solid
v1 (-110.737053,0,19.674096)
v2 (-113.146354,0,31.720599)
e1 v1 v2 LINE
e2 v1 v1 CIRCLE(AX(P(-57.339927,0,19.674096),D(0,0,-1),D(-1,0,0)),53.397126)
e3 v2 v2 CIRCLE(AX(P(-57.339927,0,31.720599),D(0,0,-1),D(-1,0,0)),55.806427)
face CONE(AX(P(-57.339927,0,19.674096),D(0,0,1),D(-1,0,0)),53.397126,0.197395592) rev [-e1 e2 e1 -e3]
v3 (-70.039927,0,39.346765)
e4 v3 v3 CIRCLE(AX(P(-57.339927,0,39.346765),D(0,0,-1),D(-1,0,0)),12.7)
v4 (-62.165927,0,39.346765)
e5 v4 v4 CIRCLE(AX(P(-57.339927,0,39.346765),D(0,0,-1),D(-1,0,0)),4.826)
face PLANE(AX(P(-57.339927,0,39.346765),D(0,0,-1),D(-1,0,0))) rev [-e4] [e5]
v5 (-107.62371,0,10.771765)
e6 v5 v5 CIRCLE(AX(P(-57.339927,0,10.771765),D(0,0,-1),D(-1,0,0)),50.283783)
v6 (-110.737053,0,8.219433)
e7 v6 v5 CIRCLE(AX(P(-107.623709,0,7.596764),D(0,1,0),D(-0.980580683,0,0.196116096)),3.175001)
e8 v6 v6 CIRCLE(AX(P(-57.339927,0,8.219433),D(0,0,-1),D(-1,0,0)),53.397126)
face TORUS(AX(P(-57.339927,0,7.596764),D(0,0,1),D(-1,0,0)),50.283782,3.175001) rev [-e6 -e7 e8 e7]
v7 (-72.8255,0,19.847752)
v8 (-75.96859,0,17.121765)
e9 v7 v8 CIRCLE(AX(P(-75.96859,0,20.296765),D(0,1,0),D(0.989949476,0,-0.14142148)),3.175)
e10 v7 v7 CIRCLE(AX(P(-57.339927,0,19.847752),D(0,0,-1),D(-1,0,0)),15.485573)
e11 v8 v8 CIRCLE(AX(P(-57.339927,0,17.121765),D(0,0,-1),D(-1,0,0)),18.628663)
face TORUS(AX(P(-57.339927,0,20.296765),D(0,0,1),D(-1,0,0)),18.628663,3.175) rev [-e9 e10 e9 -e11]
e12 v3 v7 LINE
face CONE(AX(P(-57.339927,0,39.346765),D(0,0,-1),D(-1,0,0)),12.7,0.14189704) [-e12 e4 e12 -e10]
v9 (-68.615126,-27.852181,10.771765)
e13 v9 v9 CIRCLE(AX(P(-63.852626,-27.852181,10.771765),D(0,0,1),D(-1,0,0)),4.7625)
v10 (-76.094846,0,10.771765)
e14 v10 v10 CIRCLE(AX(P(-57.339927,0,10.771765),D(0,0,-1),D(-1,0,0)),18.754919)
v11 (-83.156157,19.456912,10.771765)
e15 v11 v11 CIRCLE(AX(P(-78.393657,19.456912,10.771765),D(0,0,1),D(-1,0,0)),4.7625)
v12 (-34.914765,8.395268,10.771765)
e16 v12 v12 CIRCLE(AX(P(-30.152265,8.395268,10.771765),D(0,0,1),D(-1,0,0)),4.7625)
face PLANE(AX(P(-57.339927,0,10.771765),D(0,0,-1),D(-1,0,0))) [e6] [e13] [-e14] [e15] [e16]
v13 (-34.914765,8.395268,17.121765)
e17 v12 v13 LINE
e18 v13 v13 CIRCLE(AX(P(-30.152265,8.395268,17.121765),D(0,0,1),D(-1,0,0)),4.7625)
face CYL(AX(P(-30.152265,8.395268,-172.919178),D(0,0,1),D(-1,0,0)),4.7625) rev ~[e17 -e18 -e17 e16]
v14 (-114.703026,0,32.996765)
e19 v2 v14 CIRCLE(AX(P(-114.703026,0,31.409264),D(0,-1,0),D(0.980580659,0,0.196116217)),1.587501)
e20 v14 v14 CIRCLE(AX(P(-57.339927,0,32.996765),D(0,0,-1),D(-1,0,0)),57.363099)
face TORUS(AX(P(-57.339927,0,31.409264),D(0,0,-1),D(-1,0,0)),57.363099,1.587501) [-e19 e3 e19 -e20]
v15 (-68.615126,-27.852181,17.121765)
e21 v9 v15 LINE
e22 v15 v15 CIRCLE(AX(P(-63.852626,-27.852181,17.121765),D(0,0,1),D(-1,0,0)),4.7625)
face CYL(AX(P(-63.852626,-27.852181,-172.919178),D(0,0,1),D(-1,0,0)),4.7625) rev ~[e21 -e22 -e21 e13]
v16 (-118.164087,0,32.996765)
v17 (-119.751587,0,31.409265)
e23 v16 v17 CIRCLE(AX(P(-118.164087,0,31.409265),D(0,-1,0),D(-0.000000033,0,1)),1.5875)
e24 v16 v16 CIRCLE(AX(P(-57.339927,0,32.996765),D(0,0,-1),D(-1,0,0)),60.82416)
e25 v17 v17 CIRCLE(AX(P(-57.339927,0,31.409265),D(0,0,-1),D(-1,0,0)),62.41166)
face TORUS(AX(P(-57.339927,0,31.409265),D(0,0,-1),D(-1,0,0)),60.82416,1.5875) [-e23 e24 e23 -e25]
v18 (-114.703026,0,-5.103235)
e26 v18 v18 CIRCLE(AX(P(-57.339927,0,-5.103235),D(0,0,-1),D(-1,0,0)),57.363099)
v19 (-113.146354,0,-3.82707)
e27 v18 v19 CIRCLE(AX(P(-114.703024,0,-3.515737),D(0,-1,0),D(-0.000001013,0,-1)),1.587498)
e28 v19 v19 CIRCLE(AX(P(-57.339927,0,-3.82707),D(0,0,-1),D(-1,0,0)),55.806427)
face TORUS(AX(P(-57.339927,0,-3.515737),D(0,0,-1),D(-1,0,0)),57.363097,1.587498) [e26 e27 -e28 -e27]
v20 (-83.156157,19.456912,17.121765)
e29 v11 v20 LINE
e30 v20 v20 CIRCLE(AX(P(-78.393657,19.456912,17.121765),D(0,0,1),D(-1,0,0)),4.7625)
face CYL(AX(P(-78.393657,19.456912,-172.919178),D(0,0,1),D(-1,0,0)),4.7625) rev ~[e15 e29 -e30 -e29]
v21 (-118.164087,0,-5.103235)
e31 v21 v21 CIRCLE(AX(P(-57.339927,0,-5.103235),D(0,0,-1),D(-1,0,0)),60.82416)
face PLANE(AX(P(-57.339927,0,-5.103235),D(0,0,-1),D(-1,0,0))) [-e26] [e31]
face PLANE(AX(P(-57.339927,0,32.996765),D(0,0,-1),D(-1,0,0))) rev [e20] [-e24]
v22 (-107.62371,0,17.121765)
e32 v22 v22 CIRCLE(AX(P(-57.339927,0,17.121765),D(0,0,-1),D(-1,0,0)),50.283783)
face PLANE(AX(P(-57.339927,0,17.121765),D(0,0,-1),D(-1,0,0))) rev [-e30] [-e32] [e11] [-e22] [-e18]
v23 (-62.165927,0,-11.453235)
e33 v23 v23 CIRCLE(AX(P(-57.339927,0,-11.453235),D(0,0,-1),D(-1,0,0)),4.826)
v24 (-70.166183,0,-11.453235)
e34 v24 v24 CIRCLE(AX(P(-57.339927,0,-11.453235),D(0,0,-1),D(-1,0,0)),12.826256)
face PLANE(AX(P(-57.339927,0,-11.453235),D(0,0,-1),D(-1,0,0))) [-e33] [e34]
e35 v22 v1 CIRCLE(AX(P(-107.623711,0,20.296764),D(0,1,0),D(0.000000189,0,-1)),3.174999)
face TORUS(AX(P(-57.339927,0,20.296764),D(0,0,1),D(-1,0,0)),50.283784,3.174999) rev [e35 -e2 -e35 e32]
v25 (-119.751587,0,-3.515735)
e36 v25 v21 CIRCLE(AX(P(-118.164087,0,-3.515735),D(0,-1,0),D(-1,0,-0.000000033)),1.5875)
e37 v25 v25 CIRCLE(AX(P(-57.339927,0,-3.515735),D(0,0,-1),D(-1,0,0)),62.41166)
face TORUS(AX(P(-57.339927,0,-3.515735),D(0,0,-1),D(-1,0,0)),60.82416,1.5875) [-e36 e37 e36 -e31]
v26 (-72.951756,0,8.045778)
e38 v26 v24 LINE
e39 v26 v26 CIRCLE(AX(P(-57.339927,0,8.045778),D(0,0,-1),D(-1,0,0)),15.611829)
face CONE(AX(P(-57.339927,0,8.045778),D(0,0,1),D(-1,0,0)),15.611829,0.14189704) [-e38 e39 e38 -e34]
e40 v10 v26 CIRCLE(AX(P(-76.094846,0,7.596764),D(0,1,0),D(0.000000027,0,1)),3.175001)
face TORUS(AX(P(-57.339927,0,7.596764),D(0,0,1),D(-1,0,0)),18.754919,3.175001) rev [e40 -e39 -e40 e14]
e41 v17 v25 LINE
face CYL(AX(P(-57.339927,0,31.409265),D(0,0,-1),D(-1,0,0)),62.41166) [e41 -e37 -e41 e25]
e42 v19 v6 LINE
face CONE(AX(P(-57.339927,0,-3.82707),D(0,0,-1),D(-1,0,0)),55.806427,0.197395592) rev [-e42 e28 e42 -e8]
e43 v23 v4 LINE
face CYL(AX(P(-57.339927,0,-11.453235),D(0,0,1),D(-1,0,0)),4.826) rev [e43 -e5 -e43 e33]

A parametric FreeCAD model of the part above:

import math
import FreeCAD as App
import Part
import Sketcher
Q = App.Units.Quantity

doc = App.newDocument("Part")
body = doc.addObject("PartDesign::Body", "Body")

sketch1 = body.newObject("Sketcher::SketchObject", "Sketch")
sketch1.AttachmentSupport = (doc.getObject("XZ_Plane"), [""])
sketch1.MapMode = "FlatFace"
sketch1.addGeometry([
    Part.ArcOfCircle(Part.Circle(App.Vector(-118.164087, 31.409265, 0), App.Vector(0, 0, 1), 1.5875), math.radians(90.000002), math.radians(179.999998)),
    Part.LineSegment(App.Vector(-119.751587, 31.409265, 0), App.Vector(-119.751587, -3.515735, 0)),
    Part.ArcOfCircle(Part.Circle(App.Vector(-118.164087, -3.515735, 0), App.Vector(0, 0, 1), 1.5875), math.radians(-179.999998), math.radians(-90.000002)),
    Part.LineSegment(App.Vector(-118.164087, -5.103235, 0), App.Vector(-114.703026, -5.103235, 0)),
    Part.ArcOfCircle(Part.Circle(App.Vector(-114.703024, -3.515737, 0), App.Vector(0, 0, 1), 1.587498), math.radians(-90.000058), math.radians(-11.309909)),
    Part.LineSegment(App.Vector(-113.146354, -3.82707, 0), App.Vector(-110.737053, 8.219433, 0)),
    Part.ArcOfCircle(Part.Circle(App.Vector(-107.623709, 7.596764, 0), App.Vector(0, 0, 1), 3.175001), math.radians(90.000025), math.radians(168.69007)),
    Part.LineSegment(App.Vector(-107.62371, 10.771765, 0), App.Vector(-76.094846, 10.771765, 0)),
    Part.ArcOfCircle(Part.Circle(App.Vector(-76.094846, 7.596764, 0), App.Vector(0, 0, 1), 3.175001), math.radians(8.130114), math.radians(89.999998)),
    Part.LineSegment(App.Vector(-72.951756, 8.045778, 0), App.Vector(-70.166183, -11.453235, 0)),
    Part.LineSegment(App.Vector(-70.166183, -11.453235, 0), App.Vector(-62.165927, -11.453235, 0)),
    Part.LineSegment(App.Vector(-62.165927, -11.453235, 0), App.Vector(-62.165927, 39.346765, 0)),
    Part.LineSegment(App.Vector(-62.165927, 39.346765, 0), App.Vector(-70.039927, 39.346765, 0)),
    Part.LineSegment(App.Vector(-70.039927, 39.346765, 0), App.Vector(-72.8255, 19.847752, 0)),
    Part.ArcOfCircle(Part.Circle(App.Vector(-75.96859, 20.296765, 0), App.Vector(0, 0, 1), 3.175), math.radians(-90.000003), math.radians(-8.13011)),
    Part.LineSegment(App.Vector(-75.96859, 17.121765, 0), App.Vector(-107.62371, 17.121765, 0)),
    Part.ArcOfCircle(Part.Circle(App.Vector(-107.623711, 20.296764, 0), App.Vector(0, 0, 1), 3.174999), math.radians(-168.690084), math.radians(-89.999989)),
    Part.LineSegment(App.Vector(-110.737053, 19.674096, 0), App.Vector(-113.146354, 31.720599, 0)),
    Part.ArcOfCircle(Part.Circle(App.Vector(-114.703026, 31.409264, 0), App.Vector(0, 0, 1), 1.587501), math.radians(11.309937), math.radians(89.999986)),
    Part.LineSegment(App.Vector(-114.703026, 32.996765, 0), App.Vector(-118.164087, 32.996765, 0)),
], False)
sketch1.addGeometry(Part.LineSegment(App.Vector(-57.339927, 39.346765, 0), App.Vector(-57.339927, -11.453235, 0)), True)
sketch1.addConstraint([
    Sketcher.Constraint("Coincident", 0, 2, 1, 1),
    Sketcher.Constraint("Coincident", 1, 2, 2, 1),
    Sketcher.Constraint("Coincident", 2, 2, 3, 1),
    Sketcher.Constraint("Coincident", 3, 2, 4, 1),
    Sketcher.Constraint("Coincident", 4, 2, 5, 1),
    Sketcher.Constraint("Coincident", 5, 2, 6, 2),
    Sketcher.Constraint("Coincident", 6, 1, 7, 1),
    Sketcher.Constraint("Coincident", 7, 2, 8, 2),
    Sketcher.Constraint("Coincident", 8, 1, 9, 1),
    Sketcher.Constraint("Coincident", 9, 2, 10, 1),
    Sketcher.Constraint("Coincident", 10, 2, 11, 1),
    Sketcher.Constraint("Coincident", 11, 2, 12, 1),
    Sketcher.Constraint("Coincident", 12, 2, 13, 1),
    Sketcher.Constraint("Coincident", 13, 2, 14, 2),
    Sketcher.Constraint("Coincident", 14, 1, 15, 1),
    Sketcher.Constraint("Coincident", 15, 2, 16, 2),
    Sketcher.Constraint("Coincident", 16, 1, 17, 1),
    Sketcher.Constraint("Coincident", 17, 2, 18, 1),
    Sketcher.Constraint("Coincident", 18, 2, 19, 1),
    Sketcher.Constraint("Coincident", 19, 2, 0, 1),
    Sketcher.Constraint("Vertical", 1),
    Sketcher.Constraint("Horizontal", 3),
    Sketcher.Constraint("Horizontal", 7),
    Sketcher.Constraint("Horizontal", 10),
    Sketcher.Constraint("Vertical", 11),
    Sketcher.Constraint("Horizontal", 12),
    Sketcher.Constraint("Horizontal", 15),
    Sketcher.Constraint("Horizontal", 19),
    Sketcher.Constraint("Vertical", 20),
    Sketcher.Constraint("DistanceY", 11, 1, 11, 2, Q("2 in")),
    Sketcher.Constraint("DistanceY", 20, 2, 20, 1, Q("2 in")),
    Sketcher.Constraint("Radius", 0, Q("0.0625 in")),
    Sketcher.Constraint("Radius", 2, Q("0.0625 in")),
    Sketcher.Constraint("Radius", 4, Q("0.0624999 in")),
    Sketcher.Constraint("Radius", 6, Q("0.125 in")),
    Sketcher.Constraint("Radius", 8, Q("0.125 in")),
    Sketcher.Constraint("Radius", 14, Q("0.125 in")),
    Sketcher.Constraint("Radius", 16, Q("0.1249999 in")),
    Sketcher.Constraint("Radius", 18, Q("0.0625 in")),
    Sketcher.Constraint("DistanceY", 2, 2, 16, 3, Q("0.9999999 in")),
    Sketcher.Constraint("DistanceX", 12, 2, 12, 1, Q("0.31 in")),
    Sketcher.Constraint("DistanceY", 8, 3, 14, 3, Q("0.5 in")),
    Sketcher.Constraint("DistanceX", 12, 2, 20, 1, Q("0.5 in")),
    Sketcher.Constraint("DistanceY", 1, 2, 1, 1, Q("1.375 in")),
    Sketcher.Constraint("DistanceY", 9, 2, 8, 3, Q("0.75 in")),
    Sketcher.Constraint("DistanceY", 14, 3, 20, 1, Q("0.75 in")),
    Sketcher.Constraint("DistanceY", 2, 3, 0, 3, Q("1.375 in")),
    Sketcher.Constraint("DistanceY", 16, 3, 0, 2, Q("0.4375001 in")),
    Sketcher.Constraint("DistanceX", 1, 2, 2, 2, Q("0.0625 in")),
    Sketcher.Constraint("DistanceX", 0, 2, 19, 2, Q("0.0625 in")),
    Sketcher.Constraint("DistanceX", 3, 1, 3, 2, 3.461061),
    Sketcher.Constraint("DistanceX", 15, 2, 15, 1, 31.65512),
    Sketcher.Constraint("DistanceX", 19, 2, 19, 1, 3.461061),
    Sketcher.Constraint("DistanceX", 13, 2, -1, 1, 72.8255),
    Sketcher.Constraint("DistanceY", -1, 1, 17, 2, 31.720599),
    Sketcher.Constraint("DistanceX", 4, 2, 5, 2, 2.409301),
    Sketcher.Constraint("DistanceX", 17, 2, 16, 1, 2.409301),
    Sketcher.Constraint("Distance", 5, 12.285071),
    Sketcher.Constraint("Distance", 17, 12.285071),
    Sketcher.Constraint("DistanceX", 7, 1, 7, 2, 31.528864),
    Sketcher.Constraint("DistanceX", 10, 1, 10, 2, 8.000256),
    Sketcher.Constraint("DistanceX", 6, 3, -1, 1, 107.623709),
    Sketcher.Constraint("DistanceX", 14, 3, -1, 1, 75.96859),
    Sketcher.Constraint("DistanceX", 16, 3, -1, 1, 107.623711),
    Sketcher.Constraint("DistanceY", 4, 2, -1, 1, 3.82707),
    Sketcher.Constraint("DistanceX", 6, 1, -1, 1, 107.62371),
    Sketcher.Constraint("DistanceY", -1, 1, 13, 2, 19.847752),
    Sketcher.Constraint("DistanceX", 14, 1, -1, 1, 75.96859),
    Sketcher.Constraint("DistanceX", 2, 3, 6, 3, 10.540378),
    Sketcher.Constraint("DistanceX", 4, 3, 8, 3, 38.608178),
    Sketcher.Constraint("DistanceX", 8, 3, 8, 1, 3.14309),
    Sketcher.Constraint("DistanceX", 8, 1, 10, 2, 10.785829),
])
revolution = body.newObject("PartDesign::Revolution", "Revolution")
revolution.Profile = sketch1
revolution.ReferenceAxis = (sketch1, ["Axis0"])
revolution.Angle = 360

sketch2 = body.newObject("Sketcher::SketchObject", "Sketch001")
sketch2.AttachmentSupport = (doc.getObject("XY_Plane"), [""])
sketch2.MapMode = "FlatFace"
sketch2.AttachmentOffset = App.Placement(App.Vector(0, 0, 10.771765), App.Rotation())
sketch2.addGeometry(Part.Circle(App.Vector(-78.4, 19.5, 0), App.Vector(0, 0, 1), 4.8), False)
sketch2.addConstraint([
    Sketcher.Constraint("Diameter", 0, Q("0.375 in")),
    Sketcher.Constraint("DistanceY", -1, 1, 0, 3, 19.456912),
    Sketcher.Constraint("DistanceX", 0, 3, -1, 1, 78.393657),
])
doc.recompute()
hole = body.newObject("PartDesign::Hole", "Hole")
hole.Profile = sketch2
hole.ThreadType = "None"
hole.Diameter = Q("0.375 in")
hole.DepthType = "ThroughAll"
hole.Reversed = True

sketch3 = body.newObject("Sketcher::SketchObject", "Sketch002")
sketch3.AttachmentSupport = (doc.getObject("XY_Plane"), [""])
sketch3.MapMode = "FlatFace"
sketch3.AttachmentOffset = App.Placement(App.Vector(0, 0, 10.771765), App.Rotation())
sketch3.addGeometry(Part.Circle(App.Vector(-30.2, 8.4, 0), App.Vector(0, 0, 1), 4.8), False)
sketch3.addConstraint([
    Sketcher.Constraint("Diameter", 0, Q("0.375 in")),
    Sketcher.Constraint("DistanceX", 0, 3, -1, 1, 30.152265),
    Sketcher.Constraint("DistanceY", -1, 1, 0, 3, 8.395268),
])
doc.recompute()
hole2 = body.newObject("PartDesign::Hole", "Hole001")
hole2.Profile = sketch3
hole2.ThreadType = "None"
hole2.Diameter = Q("0.375 in")
hole2.DepthType = "ThroughAll"
hole2.Reversed = True

sketch4 = body.newObject("Sketcher::SketchObject", "Sketch003")
sketch4.AttachmentSupport = (doc.getObject("XY_Plane"), [""])
sketch4.MapMode = "FlatFace"
sketch4.AttachmentOffset = App.Placement(App.Vector(0, 0, 10.771765), App.Rotation())
sketch4.addGeometry(Part.Circle(App.Vector(-63.9, -27.9, 0), App.Vector(0, 0, 1), 4.8), False)
sketch4.addConstraint([
    Sketcher.Constraint("Diameter", 0, Q("0.375 in")),
    Sketcher.Constraint("DistanceY", 0, 3, -1, 1, 27.852181),
    Sketcher.Constraint("DistanceX", 0, 3, -1, 1, 63.852626),
])
doc.recompute()
hole3 = body.newObject("PartDesign::Hole", "Hole002")
hole3.Profile = sketch4
hole3.ThreadType = "None"
hole3.Diameter = Q("0.375 in")
hole3.DepthType = "ThroughAll"
hole3.Reversed = True

doc.recompute()
